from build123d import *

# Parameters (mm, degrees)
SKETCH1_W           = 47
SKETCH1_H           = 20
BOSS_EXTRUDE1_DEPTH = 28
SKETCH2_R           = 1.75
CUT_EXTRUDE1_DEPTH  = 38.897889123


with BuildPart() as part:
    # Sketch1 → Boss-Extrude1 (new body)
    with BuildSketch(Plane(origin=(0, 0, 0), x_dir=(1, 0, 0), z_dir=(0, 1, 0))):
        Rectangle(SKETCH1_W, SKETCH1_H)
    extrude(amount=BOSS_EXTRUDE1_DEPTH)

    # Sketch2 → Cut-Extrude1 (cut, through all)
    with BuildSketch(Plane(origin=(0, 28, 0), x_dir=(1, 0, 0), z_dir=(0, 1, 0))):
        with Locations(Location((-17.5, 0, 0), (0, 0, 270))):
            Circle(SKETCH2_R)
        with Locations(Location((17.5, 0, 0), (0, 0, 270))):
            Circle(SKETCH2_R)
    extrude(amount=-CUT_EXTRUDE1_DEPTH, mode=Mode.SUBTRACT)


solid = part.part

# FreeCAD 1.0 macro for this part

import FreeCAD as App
import Part
import Sketcher
from FreeCAD import Vector


def add_polygon(sketch, points):
    """Adds a closed chain of lines whose ends are joined by coincident constraints."""
    first, n = sketch.GeometryCount, len(points)
    for a, b in zip(points, points[1:] + points[:1]):
        sketch.addGeometry(Part.LineSegment(App.Vector(*a, 0), App.Vector(*b, 0)), False)
    for i in range(n):
        sketch.addConstraint(Sketcher.Constraint("Coincident", first + i, 2, first + (i + 1) % n, 1))

doc = App.newDocument("Part")
body = doc.addObject("PartDesign::Body", "Body")

# Sketch on XZ plane
sketch1 = body.newObject("Sketcher::SketchObject", "Sketch")
sketch1.AttachmentSupport = (doc.getObject("XZ_Plane"), [""])
sketch1.MapMode = "FlatFace"
add_polygon(sketch1, [(-24, -10), (-24, 10), (24, 10), (24, -10)])  # lines 0-3
sketch1.addConstraint(Sketcher.Constraint("Vertical", 0))
sketch1.addConstraint(Sketcher.Constraint("Horizontal", 1))
sketch1.addConstraint(Sketcher.Constraint("Vertical", 2))
sketch1.addConstraint(Sketcher.Constraint("Horizontal", 3))
sketch1.addConstraint(Sketcher.Constraint("Symmetric", 0, 2, 2, 2, -1, 1))
sketch1.addConstraint(Sketcher.Constraint("DistanceX", 1, 1, 1, 2, 47.0))
sketch1.addConstraint(Sketcher.Constraint("DistanceY", 0, 1, 0, 2, 20.0))
pad1 = body.newObject("PartDesign::Pad", "Pad")
pad1.Profile = sketch1
pad1.Length = 28
pad1.Reversed = True

# Sketch on XZ plane
sketch2 = body.newObject("Sketcher::SketchObject", "Sketch001")
sketch2.AttachmentSupport = (doc.getObject("XZ_Plane"), [""])
sketch2.MapMode = "FlatFace"
sketch2.AttachmentOffset = App.Placement(Vector(0, 0, -28), App.Rotation())
sketch2.addGeometry(Part.Circle(Vector(-17.5, 0, 0), Vector(0, 0, 1), 1.8), False)
sketch2.addGeometry(Part.Circle(Vector(17.5, 0, 0), Vector(0, 0, 1), 1.8), False)
sketch2.addConstraint(Sketcher.Constraint("Equal", 0, 1))
sketch2.addConstraint(Sketcher.Constraint("Symmetric", 0, 3, 1, 3, -1, 1))
sketch2.addConstraint(Sketcher.Constraint("PointOnObject", 0, 3, -1))
sketch2.addConstraint(Sketcher.Constraint("Diameter", 0, 3.5))
sketch2.addConstraint(Sketcher.Constraint("DistanceX", 0, 3, 1, 3, 35.0))
pocket1 = body.newObject("PartDesign::Pocket", "Pocket")
pocket1.Profile = sketch2
pocket1.Type = "ThroughAll"
pocket1.Reversed = True

doc.recompute()
